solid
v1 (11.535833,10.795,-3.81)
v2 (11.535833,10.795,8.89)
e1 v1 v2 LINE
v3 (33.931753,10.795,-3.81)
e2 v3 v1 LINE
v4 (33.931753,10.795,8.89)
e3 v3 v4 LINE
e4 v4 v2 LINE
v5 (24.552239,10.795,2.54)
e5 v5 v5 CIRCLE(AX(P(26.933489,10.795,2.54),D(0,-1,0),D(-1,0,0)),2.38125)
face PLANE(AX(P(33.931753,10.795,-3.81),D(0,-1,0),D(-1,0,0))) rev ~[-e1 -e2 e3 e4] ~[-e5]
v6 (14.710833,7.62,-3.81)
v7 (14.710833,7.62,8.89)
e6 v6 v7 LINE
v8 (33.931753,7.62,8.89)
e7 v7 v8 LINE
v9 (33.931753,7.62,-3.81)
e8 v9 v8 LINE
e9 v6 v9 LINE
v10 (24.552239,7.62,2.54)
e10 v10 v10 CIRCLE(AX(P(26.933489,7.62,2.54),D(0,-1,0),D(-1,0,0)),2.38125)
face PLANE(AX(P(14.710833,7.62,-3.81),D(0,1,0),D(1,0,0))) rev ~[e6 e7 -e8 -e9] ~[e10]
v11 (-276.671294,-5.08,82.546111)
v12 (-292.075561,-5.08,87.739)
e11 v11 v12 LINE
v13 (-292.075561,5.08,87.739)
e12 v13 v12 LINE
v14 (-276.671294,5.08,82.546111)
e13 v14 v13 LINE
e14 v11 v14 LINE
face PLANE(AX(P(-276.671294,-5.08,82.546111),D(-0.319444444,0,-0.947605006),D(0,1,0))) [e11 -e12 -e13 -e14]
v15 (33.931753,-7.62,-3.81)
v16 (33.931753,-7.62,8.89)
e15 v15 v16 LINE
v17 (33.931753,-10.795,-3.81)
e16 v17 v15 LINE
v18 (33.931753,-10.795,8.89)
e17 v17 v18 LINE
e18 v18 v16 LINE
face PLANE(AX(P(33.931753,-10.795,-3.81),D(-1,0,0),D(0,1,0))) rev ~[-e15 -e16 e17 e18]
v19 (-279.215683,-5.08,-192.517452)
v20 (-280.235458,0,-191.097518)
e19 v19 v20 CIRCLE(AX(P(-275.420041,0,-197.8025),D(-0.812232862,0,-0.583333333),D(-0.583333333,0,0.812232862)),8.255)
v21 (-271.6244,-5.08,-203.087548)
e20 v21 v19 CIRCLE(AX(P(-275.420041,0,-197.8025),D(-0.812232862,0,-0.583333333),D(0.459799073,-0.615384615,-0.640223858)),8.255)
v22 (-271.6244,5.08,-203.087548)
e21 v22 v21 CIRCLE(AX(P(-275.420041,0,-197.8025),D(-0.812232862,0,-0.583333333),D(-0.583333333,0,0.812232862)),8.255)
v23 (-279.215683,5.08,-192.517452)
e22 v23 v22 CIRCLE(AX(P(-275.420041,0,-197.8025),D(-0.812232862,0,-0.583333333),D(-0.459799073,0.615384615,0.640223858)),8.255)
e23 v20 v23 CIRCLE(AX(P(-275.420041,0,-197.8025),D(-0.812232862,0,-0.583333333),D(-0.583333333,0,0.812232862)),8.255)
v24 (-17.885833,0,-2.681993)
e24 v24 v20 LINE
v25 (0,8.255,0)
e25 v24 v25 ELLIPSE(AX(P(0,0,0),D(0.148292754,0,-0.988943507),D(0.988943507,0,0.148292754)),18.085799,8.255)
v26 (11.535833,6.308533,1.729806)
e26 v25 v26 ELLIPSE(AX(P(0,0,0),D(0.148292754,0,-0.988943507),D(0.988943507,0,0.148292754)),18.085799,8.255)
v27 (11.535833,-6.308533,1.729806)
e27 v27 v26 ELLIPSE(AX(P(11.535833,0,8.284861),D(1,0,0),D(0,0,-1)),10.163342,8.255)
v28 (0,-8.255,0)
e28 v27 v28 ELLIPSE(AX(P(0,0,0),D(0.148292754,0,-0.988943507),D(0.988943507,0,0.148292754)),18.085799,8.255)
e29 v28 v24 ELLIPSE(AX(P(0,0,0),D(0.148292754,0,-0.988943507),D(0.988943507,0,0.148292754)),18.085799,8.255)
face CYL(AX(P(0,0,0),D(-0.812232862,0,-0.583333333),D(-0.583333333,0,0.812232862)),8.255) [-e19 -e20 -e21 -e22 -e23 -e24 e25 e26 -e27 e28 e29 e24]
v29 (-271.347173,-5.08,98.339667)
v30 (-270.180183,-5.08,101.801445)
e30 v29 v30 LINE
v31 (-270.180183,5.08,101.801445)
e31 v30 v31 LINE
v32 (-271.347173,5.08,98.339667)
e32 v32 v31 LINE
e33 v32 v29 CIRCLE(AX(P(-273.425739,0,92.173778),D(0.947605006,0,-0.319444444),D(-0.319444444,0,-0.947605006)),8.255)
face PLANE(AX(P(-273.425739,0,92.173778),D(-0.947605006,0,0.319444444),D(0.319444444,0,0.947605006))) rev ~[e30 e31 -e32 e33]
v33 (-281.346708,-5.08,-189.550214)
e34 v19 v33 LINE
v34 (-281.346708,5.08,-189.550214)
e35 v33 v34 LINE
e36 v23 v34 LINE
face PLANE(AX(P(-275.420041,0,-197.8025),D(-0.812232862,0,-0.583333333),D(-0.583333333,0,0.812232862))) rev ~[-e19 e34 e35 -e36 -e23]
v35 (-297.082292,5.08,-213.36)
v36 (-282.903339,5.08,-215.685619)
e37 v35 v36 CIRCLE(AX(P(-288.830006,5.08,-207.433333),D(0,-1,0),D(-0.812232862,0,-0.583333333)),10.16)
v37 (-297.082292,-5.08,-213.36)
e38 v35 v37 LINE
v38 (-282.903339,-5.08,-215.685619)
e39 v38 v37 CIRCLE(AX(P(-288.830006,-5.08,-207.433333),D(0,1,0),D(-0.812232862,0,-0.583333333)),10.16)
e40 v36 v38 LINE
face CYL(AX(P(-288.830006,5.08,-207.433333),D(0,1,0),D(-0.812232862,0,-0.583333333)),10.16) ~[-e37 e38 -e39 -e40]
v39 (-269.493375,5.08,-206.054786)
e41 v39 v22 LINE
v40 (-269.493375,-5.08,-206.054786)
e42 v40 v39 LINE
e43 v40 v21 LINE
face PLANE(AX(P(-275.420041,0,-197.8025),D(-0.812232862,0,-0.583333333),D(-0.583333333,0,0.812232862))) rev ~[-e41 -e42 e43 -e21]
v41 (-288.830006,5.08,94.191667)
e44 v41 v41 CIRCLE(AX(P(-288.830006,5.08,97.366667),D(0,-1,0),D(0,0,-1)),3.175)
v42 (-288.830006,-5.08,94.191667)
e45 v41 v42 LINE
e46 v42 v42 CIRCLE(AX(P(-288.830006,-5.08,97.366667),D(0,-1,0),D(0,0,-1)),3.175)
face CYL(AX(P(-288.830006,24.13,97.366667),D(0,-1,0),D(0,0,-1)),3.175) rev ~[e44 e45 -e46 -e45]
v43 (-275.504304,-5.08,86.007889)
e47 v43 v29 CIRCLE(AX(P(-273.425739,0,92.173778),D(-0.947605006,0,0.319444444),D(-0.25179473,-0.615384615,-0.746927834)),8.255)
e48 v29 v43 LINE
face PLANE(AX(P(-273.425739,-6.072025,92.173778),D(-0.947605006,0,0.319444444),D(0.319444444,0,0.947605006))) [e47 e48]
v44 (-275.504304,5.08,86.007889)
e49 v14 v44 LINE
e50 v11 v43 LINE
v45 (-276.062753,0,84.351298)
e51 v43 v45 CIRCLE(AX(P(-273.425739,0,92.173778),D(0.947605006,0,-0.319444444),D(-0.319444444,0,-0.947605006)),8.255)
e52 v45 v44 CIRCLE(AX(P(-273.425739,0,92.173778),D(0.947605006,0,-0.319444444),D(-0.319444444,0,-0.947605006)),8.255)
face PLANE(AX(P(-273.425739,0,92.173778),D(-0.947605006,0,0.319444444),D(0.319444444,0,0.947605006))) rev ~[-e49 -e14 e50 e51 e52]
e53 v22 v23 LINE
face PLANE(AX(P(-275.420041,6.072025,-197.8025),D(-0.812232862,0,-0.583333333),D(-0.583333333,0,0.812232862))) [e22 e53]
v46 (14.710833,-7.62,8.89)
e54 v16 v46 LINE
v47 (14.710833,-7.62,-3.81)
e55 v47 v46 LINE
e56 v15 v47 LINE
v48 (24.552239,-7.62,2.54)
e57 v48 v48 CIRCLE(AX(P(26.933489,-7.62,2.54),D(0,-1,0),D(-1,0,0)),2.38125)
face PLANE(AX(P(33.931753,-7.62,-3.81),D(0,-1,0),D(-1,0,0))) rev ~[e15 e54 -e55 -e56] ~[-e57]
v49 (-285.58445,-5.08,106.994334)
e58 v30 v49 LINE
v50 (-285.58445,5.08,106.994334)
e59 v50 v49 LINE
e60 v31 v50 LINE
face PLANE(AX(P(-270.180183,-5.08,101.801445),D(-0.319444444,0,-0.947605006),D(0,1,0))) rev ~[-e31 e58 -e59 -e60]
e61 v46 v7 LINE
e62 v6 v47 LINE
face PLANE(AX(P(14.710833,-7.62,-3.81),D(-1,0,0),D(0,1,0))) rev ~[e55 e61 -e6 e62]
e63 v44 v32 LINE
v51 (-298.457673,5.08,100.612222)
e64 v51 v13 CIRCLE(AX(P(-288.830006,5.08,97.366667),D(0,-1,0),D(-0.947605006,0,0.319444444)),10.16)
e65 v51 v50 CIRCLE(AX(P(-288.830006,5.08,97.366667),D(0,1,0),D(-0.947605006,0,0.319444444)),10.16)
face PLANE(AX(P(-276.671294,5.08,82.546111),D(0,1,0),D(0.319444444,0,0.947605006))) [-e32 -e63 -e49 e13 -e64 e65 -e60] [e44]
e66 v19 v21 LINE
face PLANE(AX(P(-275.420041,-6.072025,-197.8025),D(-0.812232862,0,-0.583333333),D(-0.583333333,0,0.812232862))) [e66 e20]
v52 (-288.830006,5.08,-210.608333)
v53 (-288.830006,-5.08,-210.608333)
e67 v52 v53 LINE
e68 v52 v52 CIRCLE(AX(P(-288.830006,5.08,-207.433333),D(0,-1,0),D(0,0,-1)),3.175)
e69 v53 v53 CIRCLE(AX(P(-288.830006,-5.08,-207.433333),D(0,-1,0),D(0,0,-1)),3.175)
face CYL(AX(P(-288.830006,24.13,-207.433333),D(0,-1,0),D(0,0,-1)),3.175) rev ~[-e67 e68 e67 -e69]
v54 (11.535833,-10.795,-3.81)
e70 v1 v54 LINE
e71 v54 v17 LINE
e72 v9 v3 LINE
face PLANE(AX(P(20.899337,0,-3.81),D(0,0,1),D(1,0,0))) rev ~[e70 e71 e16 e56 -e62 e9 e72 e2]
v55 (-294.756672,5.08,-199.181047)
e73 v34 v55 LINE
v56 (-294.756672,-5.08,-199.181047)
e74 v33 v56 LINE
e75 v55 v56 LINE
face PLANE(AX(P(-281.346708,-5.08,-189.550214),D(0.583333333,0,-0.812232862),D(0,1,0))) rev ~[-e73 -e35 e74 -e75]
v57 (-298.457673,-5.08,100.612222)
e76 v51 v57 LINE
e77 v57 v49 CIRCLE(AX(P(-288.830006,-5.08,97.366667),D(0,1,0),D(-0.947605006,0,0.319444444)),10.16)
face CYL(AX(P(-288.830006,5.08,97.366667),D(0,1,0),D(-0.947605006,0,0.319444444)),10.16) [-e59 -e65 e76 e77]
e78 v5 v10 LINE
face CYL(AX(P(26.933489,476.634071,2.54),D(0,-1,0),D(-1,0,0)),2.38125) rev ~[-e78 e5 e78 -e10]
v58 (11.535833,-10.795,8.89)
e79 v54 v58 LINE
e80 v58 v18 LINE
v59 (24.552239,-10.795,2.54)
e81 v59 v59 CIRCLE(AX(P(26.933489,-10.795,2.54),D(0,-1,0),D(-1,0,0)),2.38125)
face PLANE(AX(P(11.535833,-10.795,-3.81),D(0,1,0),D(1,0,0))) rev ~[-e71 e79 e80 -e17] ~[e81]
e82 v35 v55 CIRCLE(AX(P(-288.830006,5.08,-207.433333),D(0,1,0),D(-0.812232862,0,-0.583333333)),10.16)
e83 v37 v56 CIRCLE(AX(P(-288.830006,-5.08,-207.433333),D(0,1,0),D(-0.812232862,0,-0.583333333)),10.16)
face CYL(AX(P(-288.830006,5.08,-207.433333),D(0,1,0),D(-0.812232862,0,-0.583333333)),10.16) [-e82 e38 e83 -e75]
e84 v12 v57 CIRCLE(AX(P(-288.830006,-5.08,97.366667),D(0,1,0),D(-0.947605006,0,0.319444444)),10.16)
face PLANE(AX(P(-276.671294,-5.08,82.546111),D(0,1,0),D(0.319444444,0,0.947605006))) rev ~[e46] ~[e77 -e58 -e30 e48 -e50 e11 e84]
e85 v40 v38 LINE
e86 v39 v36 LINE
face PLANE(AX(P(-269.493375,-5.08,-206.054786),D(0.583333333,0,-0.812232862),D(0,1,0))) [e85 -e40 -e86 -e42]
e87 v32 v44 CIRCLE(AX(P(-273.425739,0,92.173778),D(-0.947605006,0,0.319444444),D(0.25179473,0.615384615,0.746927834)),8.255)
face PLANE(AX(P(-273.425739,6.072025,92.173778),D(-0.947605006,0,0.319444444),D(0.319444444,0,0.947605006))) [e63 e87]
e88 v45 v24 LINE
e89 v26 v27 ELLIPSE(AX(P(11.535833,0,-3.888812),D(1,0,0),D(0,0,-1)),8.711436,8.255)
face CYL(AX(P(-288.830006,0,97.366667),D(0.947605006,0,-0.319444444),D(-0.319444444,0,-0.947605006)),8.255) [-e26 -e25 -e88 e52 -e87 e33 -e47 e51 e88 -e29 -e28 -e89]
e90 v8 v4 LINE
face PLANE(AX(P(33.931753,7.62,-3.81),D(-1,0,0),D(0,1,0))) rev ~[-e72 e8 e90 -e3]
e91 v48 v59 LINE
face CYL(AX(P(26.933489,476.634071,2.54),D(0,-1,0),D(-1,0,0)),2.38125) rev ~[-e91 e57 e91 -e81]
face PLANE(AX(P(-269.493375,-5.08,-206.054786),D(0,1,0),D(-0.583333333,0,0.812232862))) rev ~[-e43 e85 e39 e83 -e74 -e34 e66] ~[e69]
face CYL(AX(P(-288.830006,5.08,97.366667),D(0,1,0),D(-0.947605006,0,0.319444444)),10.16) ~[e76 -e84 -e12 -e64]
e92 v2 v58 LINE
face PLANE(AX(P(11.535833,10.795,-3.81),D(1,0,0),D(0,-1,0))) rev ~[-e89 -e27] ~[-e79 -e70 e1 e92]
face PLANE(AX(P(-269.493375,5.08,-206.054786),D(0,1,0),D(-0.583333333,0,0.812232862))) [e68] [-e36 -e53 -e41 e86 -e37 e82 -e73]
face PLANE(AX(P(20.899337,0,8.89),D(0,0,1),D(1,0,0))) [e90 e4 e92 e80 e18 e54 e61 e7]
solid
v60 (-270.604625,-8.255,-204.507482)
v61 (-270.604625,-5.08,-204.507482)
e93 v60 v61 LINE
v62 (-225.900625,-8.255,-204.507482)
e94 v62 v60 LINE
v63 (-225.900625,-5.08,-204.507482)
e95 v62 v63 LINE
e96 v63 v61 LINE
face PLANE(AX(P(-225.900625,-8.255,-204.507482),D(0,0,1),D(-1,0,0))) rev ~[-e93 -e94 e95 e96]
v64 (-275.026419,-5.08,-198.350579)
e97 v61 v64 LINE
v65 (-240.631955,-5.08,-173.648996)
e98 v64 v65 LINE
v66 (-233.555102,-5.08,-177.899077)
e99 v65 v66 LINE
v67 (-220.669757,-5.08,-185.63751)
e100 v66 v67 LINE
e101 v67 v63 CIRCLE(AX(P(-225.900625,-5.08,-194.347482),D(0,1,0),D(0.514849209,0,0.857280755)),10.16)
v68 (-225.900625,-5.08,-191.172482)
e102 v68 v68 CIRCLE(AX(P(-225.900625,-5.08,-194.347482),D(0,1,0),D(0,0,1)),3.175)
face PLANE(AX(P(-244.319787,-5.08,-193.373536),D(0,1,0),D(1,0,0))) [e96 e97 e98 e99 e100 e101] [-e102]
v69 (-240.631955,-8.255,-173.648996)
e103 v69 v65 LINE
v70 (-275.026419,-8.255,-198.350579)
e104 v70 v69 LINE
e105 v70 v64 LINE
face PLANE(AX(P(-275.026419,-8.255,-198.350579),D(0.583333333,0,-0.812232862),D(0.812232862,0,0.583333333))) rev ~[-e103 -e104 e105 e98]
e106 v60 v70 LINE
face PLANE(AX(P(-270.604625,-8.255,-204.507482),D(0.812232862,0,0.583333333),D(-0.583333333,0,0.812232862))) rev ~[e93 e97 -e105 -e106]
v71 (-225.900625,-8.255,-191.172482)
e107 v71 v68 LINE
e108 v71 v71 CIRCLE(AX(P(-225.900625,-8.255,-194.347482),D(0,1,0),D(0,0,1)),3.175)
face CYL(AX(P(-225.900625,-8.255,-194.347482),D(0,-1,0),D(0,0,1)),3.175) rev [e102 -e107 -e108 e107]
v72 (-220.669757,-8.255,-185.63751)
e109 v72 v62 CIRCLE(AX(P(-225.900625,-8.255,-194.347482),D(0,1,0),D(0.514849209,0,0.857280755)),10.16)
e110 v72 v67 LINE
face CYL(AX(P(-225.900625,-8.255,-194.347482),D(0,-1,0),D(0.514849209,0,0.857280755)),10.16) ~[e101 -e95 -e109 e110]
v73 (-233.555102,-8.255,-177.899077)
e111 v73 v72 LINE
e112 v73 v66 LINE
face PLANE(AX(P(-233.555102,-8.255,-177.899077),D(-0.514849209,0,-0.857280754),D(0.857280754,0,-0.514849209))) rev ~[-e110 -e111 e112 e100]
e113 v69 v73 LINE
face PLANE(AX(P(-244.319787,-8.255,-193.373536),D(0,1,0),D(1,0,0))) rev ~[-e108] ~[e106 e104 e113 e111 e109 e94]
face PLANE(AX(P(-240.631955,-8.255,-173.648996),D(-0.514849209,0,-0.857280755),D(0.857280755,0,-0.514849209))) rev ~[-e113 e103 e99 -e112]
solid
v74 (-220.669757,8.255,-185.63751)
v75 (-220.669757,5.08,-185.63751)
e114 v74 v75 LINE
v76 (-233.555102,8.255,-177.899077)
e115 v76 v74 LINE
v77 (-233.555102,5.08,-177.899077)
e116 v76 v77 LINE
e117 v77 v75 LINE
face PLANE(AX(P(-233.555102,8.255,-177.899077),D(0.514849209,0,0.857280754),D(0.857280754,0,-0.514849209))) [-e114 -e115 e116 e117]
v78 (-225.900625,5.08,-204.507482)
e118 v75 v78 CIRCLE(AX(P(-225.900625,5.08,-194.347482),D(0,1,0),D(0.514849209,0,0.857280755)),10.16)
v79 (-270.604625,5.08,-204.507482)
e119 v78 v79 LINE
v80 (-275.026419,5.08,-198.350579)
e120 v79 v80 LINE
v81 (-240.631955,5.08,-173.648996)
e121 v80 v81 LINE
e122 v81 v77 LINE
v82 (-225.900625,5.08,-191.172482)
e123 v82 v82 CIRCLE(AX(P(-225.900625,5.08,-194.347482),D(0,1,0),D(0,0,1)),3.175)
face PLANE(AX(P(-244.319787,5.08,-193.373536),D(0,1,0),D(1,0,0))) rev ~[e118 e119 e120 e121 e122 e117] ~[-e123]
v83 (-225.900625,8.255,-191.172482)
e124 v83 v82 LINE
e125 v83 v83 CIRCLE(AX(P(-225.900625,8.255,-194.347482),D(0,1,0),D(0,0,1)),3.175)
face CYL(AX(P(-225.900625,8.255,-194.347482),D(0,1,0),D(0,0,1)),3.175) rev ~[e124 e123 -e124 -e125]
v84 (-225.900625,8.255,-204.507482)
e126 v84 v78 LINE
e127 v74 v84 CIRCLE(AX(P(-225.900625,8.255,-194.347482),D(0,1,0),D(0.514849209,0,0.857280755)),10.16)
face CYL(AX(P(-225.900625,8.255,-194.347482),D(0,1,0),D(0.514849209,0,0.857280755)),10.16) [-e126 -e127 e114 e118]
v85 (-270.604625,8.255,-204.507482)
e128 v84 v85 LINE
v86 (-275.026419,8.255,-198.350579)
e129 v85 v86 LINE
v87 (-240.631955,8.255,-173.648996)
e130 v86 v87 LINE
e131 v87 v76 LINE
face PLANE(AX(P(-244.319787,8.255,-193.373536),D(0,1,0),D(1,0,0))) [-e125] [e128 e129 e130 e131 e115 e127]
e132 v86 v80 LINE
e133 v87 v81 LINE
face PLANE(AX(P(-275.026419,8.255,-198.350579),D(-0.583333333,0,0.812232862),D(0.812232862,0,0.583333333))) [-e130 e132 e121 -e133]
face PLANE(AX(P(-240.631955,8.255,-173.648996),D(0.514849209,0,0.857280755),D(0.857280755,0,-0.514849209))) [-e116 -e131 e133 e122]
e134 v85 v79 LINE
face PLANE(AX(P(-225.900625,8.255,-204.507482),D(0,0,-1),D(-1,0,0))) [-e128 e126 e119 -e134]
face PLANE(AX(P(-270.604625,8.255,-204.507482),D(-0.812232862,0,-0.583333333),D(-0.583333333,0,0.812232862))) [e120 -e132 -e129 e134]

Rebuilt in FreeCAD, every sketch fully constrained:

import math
import FreeCAD as App
import Part
import Sketcher

V = App.Vector
Q = App.Units.Quantity


def add_polygon(sketch, points):
    """Adds a closed chain of lines whose ends are joined by coincident constraints."""
    first, n = sketch.GeometryCount, len(points)
    for a, b in zip(points, points[1:] + points[:1]):
        sketch.addGeometry(Part.LineSegment(App.Vector(*a, 0), App.Vector(*b, 0)), False)
    for i in range(n):
        sketch.addConstraint(Sketcher.Constraint("Coincident", first + i, 2, first + (i + 1) % n, 1))

doc = App.newDocument("Part")
params = doc.addObject("Spreadsheet::Sheet", "Params")
for row, (alias, value) in enumerate([
    ("sketch1_diameter", "0.65 in"),
    ("sketch2_length", "12 in"),
    ("sketch2_length2", "14 in"),
    ("sketch3_height", "0.6 in"),
    ("sketch3_height2", "0.85 in"),
    ("pad1_length", "0.35 in"),
    ("pad1_length2", "0.15 in"),
    ("sketch4_width", "0.8 in"),
    ("sketch4_height", "0.4 in"),
    ("pad2_length", "0.4 in"),
    ("pad2_length2", "0.64 in"),
    ("sketch5_width", "0.8 in"),
    ("sketch5_height", "0.4 in"),
    ("pad3_length", "0.4 in"),
    ("pad3_length2", "0.65 in"),
    ("sketch6_radius", "0.4 in"),
    ("sketch7_radius", "0.4 in"),
    ("sketch8_radius", "0.325 in"),
    ("pocket3_length", "0.64 in"),
    ("sketch9_radius", "0.325 in"),
    ("pocket4_length", "0.65 in"),
    ("sketch10_diameter", "0.25 in"),
    ("hole_diameter", "0.25 in"),
    ("hole_depth", "0.75 in"),
    ("sketch11_diameter", "0.1875 in"),
    ("hole2_diameter", "0.1875 in"),
    ("sketch13_radius", "0.4 in"),
    ("sketch13_diameter", "0.25 in"),
    ("sketch13_width", "1.76 in"),
    ("sketch13_length", "0.325 in"),
    ("pad4_length", "0.125 in"),
    ("sketch14_radius", "0.4 in"),
    ("sketch14_diameter", "0.25 in"),
    ("sketch14_width", "1.76 in"),
    ("sketch14_length", "0.325 in"),
    ("pad5_length", "0.125 in"),
], start=1):
    params.set(f"A{row}", alias)
    params.set(f"B{row}", "=" + value)
    params.setAlias(f"B{row}", alias)

body = doc.addObject("PartDesign::Body", "Body")

# Sketch on an angled plane
sketch1 = body.newObject("Sketcher::SketchObject", "Sketch")
sketch1.Placement = App.Placement(V(-288.830006, 0, 97.366667), App.Rotation(V(-0.319444444, 0, -0.947605006), V(0, 1, 0), V(0.947605006, 0, -0.319444444), "ZXY"))
sketch1.addGeometry(Part.Circle(V(0, 0, 0), V(0, 0, 1), 8.255), False)
sketch1.addConstraint(Sketcher.Constraint("Coincident", 0, 3, -1, 1))
sketch1.addConstraint(Sketcher.Constraint("Diameter", 0, Q("0.65 in")))
sketch1.setExpression("Constraints[1]", "Params.sketch1_diameter")

# Sketch on XZ plane
sketch2 = body.newObject("Sketcher::SketchObject", "Sketch001")
sketch2.AttachmentSupport = (doc.getObject("XZ_Plane"), [""])
sketch2.MapMode = "FlatFace"
sketch2.addGeometry(Part.LineSegment(V(-288.830006, 97.366667, 0), V(0, 0, 0)), False)
sketch2.addGeometry(Part.LineSegment(V(0, 0, 0), V(-288.830006, -207.433333, 0)), False)
sketch2.addConstraint(Sketcher.Constraint("Coincident", 0, 2, 1, 1))
sketch2.addConstraint(Sketcher.Constraint("Coincident", 0, 2, -1, 1))
sketch2.addConstraint(Sketcher.Constraint("Vertical", 0, 1, 1, 2))
sketch2.addConstraint(Sketcher.Constraint("Distance", 0, Q("12 in")))
sketch2.addConstraint(Sketcher.Constraint("Distance", 1, Q("14 in")))
sketch2.addConstraint(Sketcher.Constraint("DistanceY", 1, 2, 0, 1, Q("12 in")))
sketch2.setExpression("Constraints[3]", "Params.sketch2_length")
sketch2.setExpression("Constraints[4]", "Params.sketch2_length2")
doc.recompute()

additivepipe = body.newObject("PartDesign::AdditivePipe", "AdditivePipe")
additivepipe.Profile = sketch1
additivepipe.Spine = (sketch2, ["Edge1", "Edge2"])
additivepipe.Transition = "Right corner"

# Sketch on XY plane
sketch3 = body.newObject("Sketcher::SketchObject", "Sketch002")
sketch3.AttachmentSupport = (doc.getObject("XY_Plane"), [""])
sketch3.MapMode = "FlatFace"
add_polygon(sketch3, [(33.931753, 10.795), (11.535833, 10.795), (11.535833, -10.795), (33.931753, -10.795), (33.931753, -7.62), (14.710833, -7.62), (14.710833, 7.62), (33.931753, 7.62)])  # lines 0-7
sketch3.addConstraint(Sketcher.Constraint("Horizontal", 0))
sketch3.addConstraint(Sketcher.Constraint("Vertical", 1))
sketch3.addConstraint(Sketcher.Constraint("Horizontal", 2))
sketch3.addConstraint(Sketcher.Constraint("Vertical", 3))
sketch3.addConstraint(Sketcher.Constraint("Horizontal", 4))
sketch3.addConstraint(Sketcher.Constraint("Vertical", 5))
sketch3.addConstraint(Sketcher.Constraint("Horizontal", 6))
sketch3.addConstraint(Sketcher.Constraint("Vertical", 7))
sketch3.addConstraint(Sketcher.Constraint("Symmetric", 3, 2, 6, 2, -1))
sketch3.addConstraint(Sketcher.Constraint("Equal", 3, 7))
sketch3.addConstraint(Sketcher.Constraint("DistanceY", 5, 1, 5, 2, Q("0.6 in")))
sketch3.addConstraint(Sketcher.Constraint("DistanceY", 1, 2, 1, 1, Q("0.85 in")))
sketch3.addConstraint(Sketcher.Constraint("DistanceX", 1, 2, 4, 2, Q("0.125 in")))
sketch3.addConstraint(Sketcher.Constraint("DistanceX", 0, 2, 0, 1, 22.39592))
sketch3.addConstraint(Sketcher.Constraint("DistanceX", -1, 1, 0, 2, 11.535833))
sketch3.setExpression("Constraints[18]", "Params.sketch3_height")
sketch3.setExpression("Constraints[19]", "Params.sketch3_height2")
pad1 = body.newObject("PartDesign::Pad", "Pad")
pad1.Profile = sketch3
pad1.Type = "TwoLengths"
pad1.setExpression("Length", "Params.pad1_length")
pad1.setExpression("Length2", "Params.pad1_length2")

# Sketch on an angled plane
sketch4 = body.newObject("Sketcher::SketchObject", "Sketch003")
sketch4.Placement = App.Placement(V(-288.830006, 0, 97.366667), App.Rotation(V(0.319444444, 0, 0.947605006), V(0, 1, 0), V(-0.947605006, 0, 0.319444444), "ZXY"))
add_polygon(sketch4, [(-10.16, 5.08), (-10.16, -5.08), (10.16, -5.08), (10.16, 5.08)])  # lines 0-3
sketch4.addConstraint(Sketcher.Constraint("Vertical", 0))
sketch4.addConstraint(Sketcher.Constraint("Horizontal", 1))
sketch4.addConstraint(Sketcher.Constraint("Vertical", 2))
sketch4.addConstraint(Sketcher.Constraint("Horizontal", 3))
sketch4.addConstraint(Sketcher.Constraint("Symmetric", 0, 2, 2, 2, -1, 1))
sketch4.addConstraint(Sketcher.Constraint("DistanceX", 1, 1, 1, 2, Q("0.8 in")))
sketch4.addConstraint(Sketcher.Constraint("DistanceY", 0, 2, 0, 1, Q("0.4 in")))
sketch4.setExpression("Constraints[9]", "Params.sketch4_width")
sketch4.setExpression("Constraints[10]", "Params.sketch4_height")
pad2 = body.newObject("PartDesign::Pad", "Pad001")
pad2.Profile = sketch4
pad2.Type = "TwoLengths"
pad2.setExpression("Length", "Params.pad2_length")
pad2.setExpression("Length2", "Params.pad2_length2")

# Sketch on an angled plane
sketch5 = body.newObject("Sketcher::SketchObject", "Sketch004")
sketch5.Placement = App.Placement(V(-288.830006, 0, -207.433333), App.Rotation(V(-0.583333333, 0, 0.812232862), V(0, 1, 0), V(-0.812232862, 0, -0.583333333), "ZXY"))
add_polygon(sketch5, [(-10.16, 5.08), (-10.16, -5.08), (10.16, -5.08), (10.16, 5.08)])  # lines 0-3
sketch5.addConstraint(Sketcher.Constraint("Vertical", 0))
sketch5.addConstraint(Sketcher.Constraint("Horizontal", 1))
sketch5.addConstraint(Sketcher.Constraint("Vertical", 2))
sketch5.addConstraint(Sketcher.Constraint("Horizontal", 3))
sketch5.addConstraint(Sketcher.Constraint("Symmetric", 0, 2, 2, 2, -1, 1))
sketch5.addConstraint(Sketcher.Constraint("DistanceX", 1, 1, 1, 2, Q("0.8 in")))
sketch5.addConstraint(Sketcher.Constraint("DistanceY", 0, 2, 0, 1, Q("0.4 in")))
sketch5.setExpression("Constraints[9]", "Params.sketch5_width")
sketch5.setExpression("Constraints[10]", "Params.sketch5_height")
pad3 = body.newObject("PartDesign::Pad", "Pad002")
pad3.Profile = sketch5
pad3.Type = "TwoLengths"
pad3.setExpression("Length", "Params.pad3_length")
pad3.setExpression("Length2", "Params.pad3_length2")

# Sketch on XZ plane
sketch6 = body.newObject("Sketcher::SketchObject", "Sketch005")
sketch6.AttachmentSupport = (doc.getObject("XZ_Plane"), [""])
sketch6.MapMode = "FlatFace"
sketch6.AttachmentOffset = App.Placement(V(0, 0, -0.2 * 25.4), App.Rotation())
sketch6.addGeometry(Part.LineSegment(V(-303.008958, -205.107714, 0), V(-294.756672, -199.181047, 0)), False)
sketch6.addGeometry(Part.ArcOfCircle(Part.Circle(V(-288.830006, -207.433333, 0), V(0, 0, 1), 10.16), math.radians(125.685335), math.radians(215.685335)), False)
sketch6.addGeometry(Part.LineSegment(V(-297.082292, -213.36, 0), V(-303.008958, -205.107714, 0)), False)
sketch6.addConstraint(Sketcher.Constraint("Tangent", 0, 2, 1, 1))
sketch6.addConstraint(Sketcher.Constraint("Tangent", 1, 2, 2, 1))
sketch6.addConstraint(Sketcher.Constraint("Coincident", 2, 2, 0, 1))
sketch6.addConstraint(Sketcher.Constraint("Perpendicular", 0, 2))
sketch6.addConstraint(Sketcher.Constraint("Radius", 1, Q("0.4 in")))
sketch6.addConstraint(Sketcher.Constraint("DistanceY", 1, 2, -1, 1, Q("8.4 in")))
sketch6.addConstraint(Sketcher.Constraint("DistanceX", 1, 2, -1, 1, 297.082292))
sketch6.addConstraint(Sketcher.Constraint("DistanceX", 2, 2, -1, 1, 303.008958))
sketch6.setExpression("Constraints[4]", "Params.sketch6_radius")
pocket1 = body.newObject("PartDesign::Pocket", "Pocket")
pocket1.Profile = sketch6
pocket1.Type = "ThroughAll"
pocket1.Reversed = True
doc.recompute()

datumplane = body.newObject("PartDesign::Plane", "DatumPlane")
datumplane.Placement = App.Placement(V(0, 0, 0), App.Rotation(V(-0.812232862, 0, -0.583333333), V(0, -1, 0), V(-0.583333333, 0, 0.812232862), "ZXY"))
mirrored = body.newObject("PartDesign::Mirrored", "Mirrored")
mirrored.Originals = [pocket1]
mirrored.MirrorPlane = (datumplane, [""])
body.Tip = mirrored

# Sketch on XZ plane
sketch7 = body.newObject("Sketcher::SketchObject", "Sketch006")
sketch7.AttachmentSupport = (doc.getObject("XZ_Plane"), [""])
sketch7.MapMode = "FlatFace"
sketch7.AttachmentOffset = App.Placement(V(0, 0, -0.2 * 25.4), App.Rotation())
sketch7.addGeometry(Part.LineSegment(V(-295.212117, 110.239889, 0), V(-285.58445, 106.994334, 0)), False)
sketch7.addGeometry(Part.ArcOfCircle(Part.Circle(V(-288.830006, 97.366667, 0), V(0, 0, 1), 10.16), math.radians(71.370669), math.radians(161.370669)), False)
sketch7.addGeometry(Part.LineSegment(V(-298.457673, 100.612222, 0), V(-295.212117, 110.239889, 0)), False)
sketch7.addConstraint(Sketcher.Constraint("Tangent", 0, 2, 1, 1))
sketch7.addConstraint(Sketcher.Constraint("Tangent", 1, 2, 2, 1))
sketch7.addConstraint(Sketcher.Constraint("Coincident", 2, 2, 0, 1))
sketch7.addConstraint(Sketcher.Constraint("Perpendicular", 0, 2))
sketch7.addConstraint(Sketcher.Constraint("Radius", 1, Q("0.4 in")))
sketch7.addConstraint(Sketcher.Constraint("DistanceX", 0, 2, -1, 1, 285.58445))
sketch7.addConstraint(Sketcher.Constraint("DistanceY", -1, 1, 2, 2, 110.239889))
sketch7.addConstraint(Sketcher.Constraint("DistanceY", 1, 2, 0, 2, 6.382111))
sketch7.setExpression("Constraints[4]", "Params.sketch7_radius")
pocket2 = body.newObject("PartDesign::Pocket", "Pocket001")
pocket2.Profile = sketch7
pocket2.Type = "ThroughAll"
pocket2.Reversed = True
doc.recompute()

datumplane2 = body.newObject("PartDesign::Plane", "DatumPlane001")
datumplane2.Placement = App.Placement(V(0, 0, 0), App.Rotation(V(-0.947605006, 0, 0.319444444), V(0, -1, 0), V(0.319444444, 0, 0.947605006), "ZXY"))
mirrored2 = body.newObject("PartDesign::Mirrored", "Mirrored001")
mirrored2.Originals = [pocket2]
mirrored2.MirrorPlane = (datumplane2, [""])
body.Tip = mirrored2

# Sketch on an angled plane
sketch8 = body.newObject("Sketcher::SketchObject", "Sketch007")
sketch8.Placement = App.Placement(V(-273.425739, 0, 92.173778), App.Rotation(V(0.319444444, 0, 0.947605006), V(0, 1, 0), V(-0.947605006, 0, 0.319444444), "ZXY"))
sketch8.addGeometry(Part.LineSegment(V(6.506814, -5.08, 0), V(-6.506814, -5.08, 0)), False)
sketch8.addGeometry(Part.ArcOfCircle(Part.Circle(V(0, 0, 0), V(0, 0, 1), 8.255), math.radians(-142.020128), math.radians(-37.979872)), False)
sketch8.addGeometry(Part.LineSegment(V(-6.506814, 5.08, 0), V(6.506814, 5.08, 0)), False)
sketch8.addGeometry(Part.ArcOfCircle(Part.Circle(V(0, 0, 0), V(0, 0, 1), 8.255), math.radians(37.979872), math.radians(142.020128)), False)
sketch8.addConstraint(Sketcher.Constraint("Coincident", 0, 1, 1, 2))
sketch8.addConstraint(Sketcher.Constraint("Coincident", 1, 1, 0, 2))
sketch8.addConstraint(Sketcher.Constraint("Coincident", 2, 1, 3, 2))
sketch8.addConstraint(Sketcher.Constraint("Coincident", 3, 1, 2, 2))
sketch8.addConstraint(Sketcher.Constraint("Horizontal", 0))
sketch8.addConstraint(Sketcher.Constraint("Horizontal", 2))
sketch8.addConstraint(Sketcher.Constraint("Coincident", 1, 3, -1, 1))
sketch8.addConstraint(Sketcher.Constraint("Coincident", 3, 3, -1, 1))
sketch8.addConstraint(Sketcher.Constraint("Equal", 1, 3))
sketch8.addConstraint(Sketcher.Constraint("Vertical", 1, 1, 2, 1))
sketch8.addConstraint(Sketcher.Constraint("Radius", 1, Q("0.325 in")))
sketch8.addConstraint(Sketcher.Constraint("DistanceY", 0, 1, -1, 1, Q("0.2 in")))
sketch8.setExpression("Constraints[10]", "Params.sketch8_radius")
pocket3 = body.newObject("PartDesign::Pocket", "Pocket002")
pocket3.Profile = sketch8
pocket3.setExpression("Length", "Params.pocket3_length")
pocket3.Reversed = True

# Sketch on an angled plane
sketch9 = body.newObject("Sketcher::SketchObject", "Sketch008")
sketch9.Placement = App.Placement(V(-288.830006, 0, -207.433333), App.Rotation(V(-0.583333333, 0, 0.812232862), V(0, 1, 0), V(-0.812232862, 0, -0.583333333), "ZXY"))
sketch9.addGeometry(Part.LineSegment(V(6.506814, -5.08, 0), V(-6.506814, -5.08, 0)), False)
sketch9.addGeometry(Part.ArcOfCircle(Part.Circle(V(0, 0, 0), V(0, 0, 1), 8.255), math.radians(-142.020128), math.radians(-37.979872)), False)
sketch9.addGeometry(Part.LineSegment(V(-6.506814, 5.08, 0), V(6.506814, 5.08, 0)), False)
sketch9.addGeometry(Part.ArcOfCircle(Part.Circle(V(0, 0, 0), V(0, 0, 1), 8.255), math.radians(37.979872), math.radians(142.020128)), False)
sketch9.addConstraint(Sketcher.Constraint("Coincident", 0, 1, 1, 2))
sketch9.addConstraint(Sketcher.Constraint("Coincident", 1, 1, 0, 2))
sketch9.addConstraint(Sketcher.Constraint("Coincident", 2, 1, 3, 2))
sketch9.addConstraint(Sketcher.Constraint("Coincident", 3, 1, 2, 2))
sketch9.addConstraint(Sketcher.Constraint("Horizontal", 0))
sketch9.addConstraint(Sketcher.Constraint("Horizontal", 2))
sketch9.addConstraint(Sketcher.Constraint("Coincident", 1, 3, -1, 1))
sketch9.addConstraint(Sketcher.Constraint("Coincident", 3, 3, -1, 1))
sketch9.addConstraint(Sketcher.Constraint("Equal", 1, 3))
sketch9.addConstraint(Sketcher.Constraint("Vertical", 1, 1, 2, 1))
sketch9.addConstraint(Sketcher.Constraint("Radius", 1, Q("0.325 in")))
sketch9.addConstraint(Sketcher.Constraint("DistanceY", 0, 1, -1, 1, Q("0.2 in")))
sketch9.setExpression("Constraints[10]", "Params.sketch9_radius")
pocket4 = body.newObject("PartDesign::Pocket", "Pocket003")
pocket4.Profile = sketch9
pocket4.setExpression("Length", "Params.pocket4_length")

# Sketch on XZ plane
sketch10 = body.newObject("Sketcher::SketchObject", "Sketch009")
sketch10.AttachmentSupport = (doc.getObject("XZ_Plane"), [""])
sketch10.MapMode = "FlatFace"
sketch10.AttachmentOffset = App.Placement(V(0, 0, -0.2 * 25.4), App.Rotation())
sketch10.addGeometry(Part.Circle(V(-288.830006, -207.433333, 0), V(0, 0, 1), 3.175), False)
sketch10.addGeometry(Part.Circle(V(-288.830006, 97.366667, 0), V(0, 0, 1), 3.175), False)
sketch10.addConstraint(Sketcher.Constraint("Equal", 0, 1))
sketch10.addConstraint(Sketcher.Constraint("Vertical", 0, 3, 1, 3))
sketch10.addConstraint(Sketcher.Constraint("Diameter", 0, Q("0.25 in")))
sketch10.addConstraint(Sketcher.Constraint("DistanceY", 0, 3, 1, 3, Q("12 in")))
sketch10.addConstraint(Sketcher.Constraint("DistanceX", 0, 3, -1, 1, 288.830006))
sketch10.addConstraint(Sketcher.Constraint("DistanceY", 0, 3, -1, 1, 207.433333))
sketch10.setExpression("Constraints[2]", "Params.sketch10_diameter")
doc.recompute()
hole = body.newObject("PartDesign::Hole", "Hole")
hole.Profile = sketch10
hole.ThreadType = "None"
hole.setExpression("Diameter", "Params.hole_diameter")
hole.DepthType = "Dimension"
hole.setExpression("Depth", "Params.hole_depth")
hole.DrillPoint = "Angled"
hole.DrillPointAngle = 118
hole.Reversed = True

# Sketch on XZ plane
sketch11 = body.newObject("Sketcher::SketchObject", "Sketch010")
sketch11.AttachmentSupport = (doc.getObject("XZ_Plane"), [""])
sketch11.MapMode = "FlatFace"
sketch11.AttachmentOffset = App.Placement(V(0, 0, -0.425 * 25.4), App.Rotation())
sketch11.addGeometry(Part.Circle(V(26.933489, 2.54, 0), V(0, 0, 1), 2.38125), False)
sketch11.addConstraint(Sketcher.Constraint("Diameter", 0, Q("0.1875 in")))
sketch11.addConstraint(Sketcher.Constraint("DistanceY", -1, 1, 0, 3, Q("0.1 in")))
sketch11.addConstraint(Sketcher.Constraint("DistanceX", -1, 1, 0, 3, 26.933489))
sketch11.setExpression("Constraints[0]", "Params.sketch11_diameter")
doc.recompute()
hole2 = body.newObject("PartDesign::Hole", "Hole001")
hole2.Profile = sketch11
hole2.ThreadType = "None"
hole2.setExpression("Diameter", "Params.hole2_diameter")
hole2.DepthType = "ThroughAll"
hole2.Reversed = True

# Sketch on XY plane
sketch12 = body.newObject("Sketcher::SketchObject", "Sketch011")
sketch12.AttachmentSupport = (doc.getObject("XY_Plane"), [""])
sketch12.MapMode = "FlatFace"
sketch12.AttachmentOffset = App.Placement(V(0, 0, 0.35 * 25.4), App.Rotation())
sketch12.addGeometry(Part.LineSegment(V(14.710833, 4.695333, 0), V(14.710833, -4.695333, 0)), False)
sketch12.addGeometry(Part.BSplineCurve([V(14.710833, -4.695333, 0), V(21.746085, 0, 0), V(14.710833, 4.695333, 0)], [3, 3], [5.678155611, 6.888215004], False, 2, [1, 0.822485207, 1], False), False)
sketch12.addConstraint(Sketcher.Constraint("Block", 1))
sketch12.addConstraint(Sketcher.Constraint("Coincident", 0, 1, 1, 2))
sketch12.addConstraint(Sketcher.Constraint("Coincident", 1, 1, 0, 2))
pocket5 = body.newObject("PartDesign::Pocket", "Pocket004")
pocket5.Profile = sketch12
pocket5.Type = "ThroughAll"
body2 = doc.addObject("PartDesign::Body", "Body001")

# Sketch on XZ plane
sketch13 = body2.newObject("Sketcher::SketchObject", "Sketch012")
sketch13.AttachmentSupport = (doc.getObject("XZ_Plane001"), [""])
sketch13.MapMode = "FlatFace"
sketch13.AttachmentOffset = App.Placement(V(0, 0, -0.325 * 25.4), App.Rotation())
sketch13.addGeometry(Part.LineSegment(V(-225.900625, -204.507482, 0), V(-270.604625, -204.507482, 0)), False)
sketch13.addGeometry(Part.LineSegment(V(-270.604625, -204.507482, 0), V(-275.026419, -198.350579, 0)), False)
sketch13.addGeometry(Part.LineSegment(V(-275.026419, -198.350579, 0), V(-240.631955, -173.648996, 0)), False)
sketch13.addGeometry(Part.LineSegment(V(-240.631955, -173.648996, 0), V(-233.555102, -177.899077, 0)), False)
sketch13.addGeometry(Part.LineSegment(V(-233.555102, -177.899077, 0), V(-220.669757, -185.63751, 0)), False)
sketch13.addGeometry(Part.ArcOfCircle(Part.Circle(V(-225.900625, -194.347482, 0), V(0, 0, 1), 10.16), math.radians(-90), math.radians(59.012624)), False)
sketch13.addGeometry(Part.Circle(V(-225.900625, -194.347482, 0), V(0, 0, 1), 3.175), False)
sketch13.addConstraint(Sketcher.Constraint("Coincident", 0, 2, 1, 1))
sketch13.addConstraint(Sketcher.Constraint("Coincident", 1, 2, 2, 1))
sketch13.addConstraint(Sketcher.Constraint("Coincident", 2, 2, 3, 1))
sketch13.addConstraint(Sketcher.Constraint("Coincident", 3, 2, 4, 1))
sketch13.addConstraint(Sketcher.Constraint("Tangent", 4, 2, 5, 2))
sketch13.addConstraint(Sketcher.Constraint("Tangent", 5, 1, 0, 1))
sketch13.addConstraint(Sketcher.Constraint("Horizontal", 0))
sketch13.addConstraint(Sketcher.Constraint("Coincident", 6, 3, 5, 3))
sketch13.addConstraint(Sketcher.Constraint("Perpendicular", 1, 2))
sketch13.addConstraint(Sketcher.Constraint("Parallel", 3, 4))
sketch13.addConstraint(Sketcher.Constraint("Radius", 5, Q("0.4 in")))
sketch13.addConstraint(Sketcher.Constraint("Diameter", 6, Q("0.25 in")))
sketch13.addConstraint(Sketcher.Constraint("DistanceX", 0, 2, 0, 1, Q("1.76 in")))
sketch13.addConstraint(Sketcher.Constraint("Distance", 3, Q("0.325 in")))
sketch13.addConstraint(Sketcher.Constraint("DistanceX", 3, 2, -1, 1, 233.555102))
sketch13.addConstraint(Sketcher.Constraint("DistanceX", 2, 2, 4, 2, 19.962198))
sketch13.addConstraint(Sketcher.Constraint("Distance", 1, 7.580219))
sketch13.addConstraint(Sketcher.Constraint("Distance", 2, 42.345571))
sketch13.addConstraint(Sketcher.Constraint("DistanceY", 1, 2, -1, 1, 198.350579))
sketch13.setExpression("Constraints[10]", "Params.sketch13_radius")
sketch13.setExpression("Constraints[11]", "Params.sketch13_diameter")
sketch13.setExpression("Constraints[12]", "Params.sketch13_width")
sketch13.setExpression("Constraints[13]", "Params.sketch13_length")
pad4 = body2.newObject("PartDesign::Pad", "Pad003")
pad4.Profile = sketch13
pad4.setExpression("Length", "Params.pad4_length")
body3 = doc.addObject("PartDesign::Body", "Body002")

# Sketch on XZ plane
sketch14 = body3.newObject("Sketcher::SketchObject", "Sketch013")
sketch14.AttachmentSupport = (doc.getObject("XZ_Plane002"), [""])
sketch14.MapMode = "FlatFace"
sketch14.AttachmentOffset = App.Placement(V(0, 0, 0.325 * 25.4), App.Rotation())
sketch14.addGeometry(Part.LineSegment(V(-270.604625, -204.507482, 0), V(-275.026419, -198.350579, 0)), False)
sketch14.addGeometry(Part.LineSegment(V(-275.026419, -198.350579, 0), V(-240.631955, -173.648996, 0)), False)
sketch14.addGeometry(Part.LineSegment(V(-240.631955, -173.648996, 0), V(-233.555102, -177.899077, 0)), False)
sketch14.addGeometry(Part.LineSegment(V(-233.555102, -177.899077, 0), V(-220.669757, -185.63751, 0)), False)
sketch14.addGeometry(Part.ArcOfCircle(Part.Circle(V(-225.900625, -194.347482, 0), V(0, 0, 1), 10.16), math.radians(-90), math.radians(59.012624)), False)
sketch14.addGeometry(Part.LineSegment(V(-225.900625, -204.507482, 0), V(-270.604625, -204.507482, 0)), False)
sketch14.addGeometry(Part.Circle(V(-225.900625, -194.347482, 0), V(0, 0, 1), 3.175), False)
sketch14.addConstraint(Sketcher.Constraint("Coincident", 0, 2, 1, 1))
sketch14.addConstraint(Sketcher.Constraint("Coincident", 1, 2, 2, 1))
sketch14.addConstraint(Sketcher.Constraint("Coincident", 2, 2, 3, 1))
sketch14.addConstraint(Sketcher.Constraint("Tangent", 3, 2, 4, 2))
sketch14.addConstraint(Sketcher.Constraint("Tangent", 4, 1, 5, 1))
sketch14.addConstraint(Sketcher.Constraint("Coincident", 5, 2, 0, 1))
sketch14.addConstraint(Sketcher.Constraint("Horizontal", 5))
sketch14.addConstraint(Sketcher.Constraint("Coincident", 6, 3, 4, 3))
sketch14.addConstraint(Sketcher.Constraint("Perpendicular", 0, 1))
sketch14.addConstraint(Sketcher.Constraint("Parallel", 2, 3))
sketch14.addConstraint(Sketcher.Constraint("Radius", 4, Q("0.4 in")))
sketch14.addConstraint(Sketcher.Constraint("Diameter", 6, Q("0.25 in")))
sketch14.addConstraint(Sketcher.Constraint("DistanceX", 5, 2, 5, 1, Q("1.76 in")))
sketch14.addConstraint(Sketcher.Constraint("Distance", 2, Q("0.325 in")))
sketch14.addConstraint(Sketcher.Constraint("DistanceX", 2, 2, -1, 1, 233.555102))
sketch14.addConstraint(Sketcher.Constraint("DistanceX", 1, 2, 3, 2, 19.962198))
sketch14.addConstraint(Sketcher.Constraint("Distance", 0, 7.580219))
sketch14.addConstraint(Sketcher.Constraint("Distance", 1, 42.345571))
sketch14.addConstraint(Sketcher.Constraint("DistanceY", 0, 2, -1, 1, 198.350579))
sketch14.setExpression("Constraints[10]", "Params.sketch14_radius")
sketch14.setExpression("Constraints[11]", "Params.sketch14_diameter")
sketch14.setExpression("Constraints[12]", "Params.sketch14_width")
sketch14.setExpression("Constraints[13]", "Params.sketch14_length")
pad5 = body3.newObject("PartDesign::Pad", "Pad004")
pad5.Profile = sketch14
pad5.setExpression("Length", "Params.pad5_length")
pad5.Reversed = True

doc.recompute()
